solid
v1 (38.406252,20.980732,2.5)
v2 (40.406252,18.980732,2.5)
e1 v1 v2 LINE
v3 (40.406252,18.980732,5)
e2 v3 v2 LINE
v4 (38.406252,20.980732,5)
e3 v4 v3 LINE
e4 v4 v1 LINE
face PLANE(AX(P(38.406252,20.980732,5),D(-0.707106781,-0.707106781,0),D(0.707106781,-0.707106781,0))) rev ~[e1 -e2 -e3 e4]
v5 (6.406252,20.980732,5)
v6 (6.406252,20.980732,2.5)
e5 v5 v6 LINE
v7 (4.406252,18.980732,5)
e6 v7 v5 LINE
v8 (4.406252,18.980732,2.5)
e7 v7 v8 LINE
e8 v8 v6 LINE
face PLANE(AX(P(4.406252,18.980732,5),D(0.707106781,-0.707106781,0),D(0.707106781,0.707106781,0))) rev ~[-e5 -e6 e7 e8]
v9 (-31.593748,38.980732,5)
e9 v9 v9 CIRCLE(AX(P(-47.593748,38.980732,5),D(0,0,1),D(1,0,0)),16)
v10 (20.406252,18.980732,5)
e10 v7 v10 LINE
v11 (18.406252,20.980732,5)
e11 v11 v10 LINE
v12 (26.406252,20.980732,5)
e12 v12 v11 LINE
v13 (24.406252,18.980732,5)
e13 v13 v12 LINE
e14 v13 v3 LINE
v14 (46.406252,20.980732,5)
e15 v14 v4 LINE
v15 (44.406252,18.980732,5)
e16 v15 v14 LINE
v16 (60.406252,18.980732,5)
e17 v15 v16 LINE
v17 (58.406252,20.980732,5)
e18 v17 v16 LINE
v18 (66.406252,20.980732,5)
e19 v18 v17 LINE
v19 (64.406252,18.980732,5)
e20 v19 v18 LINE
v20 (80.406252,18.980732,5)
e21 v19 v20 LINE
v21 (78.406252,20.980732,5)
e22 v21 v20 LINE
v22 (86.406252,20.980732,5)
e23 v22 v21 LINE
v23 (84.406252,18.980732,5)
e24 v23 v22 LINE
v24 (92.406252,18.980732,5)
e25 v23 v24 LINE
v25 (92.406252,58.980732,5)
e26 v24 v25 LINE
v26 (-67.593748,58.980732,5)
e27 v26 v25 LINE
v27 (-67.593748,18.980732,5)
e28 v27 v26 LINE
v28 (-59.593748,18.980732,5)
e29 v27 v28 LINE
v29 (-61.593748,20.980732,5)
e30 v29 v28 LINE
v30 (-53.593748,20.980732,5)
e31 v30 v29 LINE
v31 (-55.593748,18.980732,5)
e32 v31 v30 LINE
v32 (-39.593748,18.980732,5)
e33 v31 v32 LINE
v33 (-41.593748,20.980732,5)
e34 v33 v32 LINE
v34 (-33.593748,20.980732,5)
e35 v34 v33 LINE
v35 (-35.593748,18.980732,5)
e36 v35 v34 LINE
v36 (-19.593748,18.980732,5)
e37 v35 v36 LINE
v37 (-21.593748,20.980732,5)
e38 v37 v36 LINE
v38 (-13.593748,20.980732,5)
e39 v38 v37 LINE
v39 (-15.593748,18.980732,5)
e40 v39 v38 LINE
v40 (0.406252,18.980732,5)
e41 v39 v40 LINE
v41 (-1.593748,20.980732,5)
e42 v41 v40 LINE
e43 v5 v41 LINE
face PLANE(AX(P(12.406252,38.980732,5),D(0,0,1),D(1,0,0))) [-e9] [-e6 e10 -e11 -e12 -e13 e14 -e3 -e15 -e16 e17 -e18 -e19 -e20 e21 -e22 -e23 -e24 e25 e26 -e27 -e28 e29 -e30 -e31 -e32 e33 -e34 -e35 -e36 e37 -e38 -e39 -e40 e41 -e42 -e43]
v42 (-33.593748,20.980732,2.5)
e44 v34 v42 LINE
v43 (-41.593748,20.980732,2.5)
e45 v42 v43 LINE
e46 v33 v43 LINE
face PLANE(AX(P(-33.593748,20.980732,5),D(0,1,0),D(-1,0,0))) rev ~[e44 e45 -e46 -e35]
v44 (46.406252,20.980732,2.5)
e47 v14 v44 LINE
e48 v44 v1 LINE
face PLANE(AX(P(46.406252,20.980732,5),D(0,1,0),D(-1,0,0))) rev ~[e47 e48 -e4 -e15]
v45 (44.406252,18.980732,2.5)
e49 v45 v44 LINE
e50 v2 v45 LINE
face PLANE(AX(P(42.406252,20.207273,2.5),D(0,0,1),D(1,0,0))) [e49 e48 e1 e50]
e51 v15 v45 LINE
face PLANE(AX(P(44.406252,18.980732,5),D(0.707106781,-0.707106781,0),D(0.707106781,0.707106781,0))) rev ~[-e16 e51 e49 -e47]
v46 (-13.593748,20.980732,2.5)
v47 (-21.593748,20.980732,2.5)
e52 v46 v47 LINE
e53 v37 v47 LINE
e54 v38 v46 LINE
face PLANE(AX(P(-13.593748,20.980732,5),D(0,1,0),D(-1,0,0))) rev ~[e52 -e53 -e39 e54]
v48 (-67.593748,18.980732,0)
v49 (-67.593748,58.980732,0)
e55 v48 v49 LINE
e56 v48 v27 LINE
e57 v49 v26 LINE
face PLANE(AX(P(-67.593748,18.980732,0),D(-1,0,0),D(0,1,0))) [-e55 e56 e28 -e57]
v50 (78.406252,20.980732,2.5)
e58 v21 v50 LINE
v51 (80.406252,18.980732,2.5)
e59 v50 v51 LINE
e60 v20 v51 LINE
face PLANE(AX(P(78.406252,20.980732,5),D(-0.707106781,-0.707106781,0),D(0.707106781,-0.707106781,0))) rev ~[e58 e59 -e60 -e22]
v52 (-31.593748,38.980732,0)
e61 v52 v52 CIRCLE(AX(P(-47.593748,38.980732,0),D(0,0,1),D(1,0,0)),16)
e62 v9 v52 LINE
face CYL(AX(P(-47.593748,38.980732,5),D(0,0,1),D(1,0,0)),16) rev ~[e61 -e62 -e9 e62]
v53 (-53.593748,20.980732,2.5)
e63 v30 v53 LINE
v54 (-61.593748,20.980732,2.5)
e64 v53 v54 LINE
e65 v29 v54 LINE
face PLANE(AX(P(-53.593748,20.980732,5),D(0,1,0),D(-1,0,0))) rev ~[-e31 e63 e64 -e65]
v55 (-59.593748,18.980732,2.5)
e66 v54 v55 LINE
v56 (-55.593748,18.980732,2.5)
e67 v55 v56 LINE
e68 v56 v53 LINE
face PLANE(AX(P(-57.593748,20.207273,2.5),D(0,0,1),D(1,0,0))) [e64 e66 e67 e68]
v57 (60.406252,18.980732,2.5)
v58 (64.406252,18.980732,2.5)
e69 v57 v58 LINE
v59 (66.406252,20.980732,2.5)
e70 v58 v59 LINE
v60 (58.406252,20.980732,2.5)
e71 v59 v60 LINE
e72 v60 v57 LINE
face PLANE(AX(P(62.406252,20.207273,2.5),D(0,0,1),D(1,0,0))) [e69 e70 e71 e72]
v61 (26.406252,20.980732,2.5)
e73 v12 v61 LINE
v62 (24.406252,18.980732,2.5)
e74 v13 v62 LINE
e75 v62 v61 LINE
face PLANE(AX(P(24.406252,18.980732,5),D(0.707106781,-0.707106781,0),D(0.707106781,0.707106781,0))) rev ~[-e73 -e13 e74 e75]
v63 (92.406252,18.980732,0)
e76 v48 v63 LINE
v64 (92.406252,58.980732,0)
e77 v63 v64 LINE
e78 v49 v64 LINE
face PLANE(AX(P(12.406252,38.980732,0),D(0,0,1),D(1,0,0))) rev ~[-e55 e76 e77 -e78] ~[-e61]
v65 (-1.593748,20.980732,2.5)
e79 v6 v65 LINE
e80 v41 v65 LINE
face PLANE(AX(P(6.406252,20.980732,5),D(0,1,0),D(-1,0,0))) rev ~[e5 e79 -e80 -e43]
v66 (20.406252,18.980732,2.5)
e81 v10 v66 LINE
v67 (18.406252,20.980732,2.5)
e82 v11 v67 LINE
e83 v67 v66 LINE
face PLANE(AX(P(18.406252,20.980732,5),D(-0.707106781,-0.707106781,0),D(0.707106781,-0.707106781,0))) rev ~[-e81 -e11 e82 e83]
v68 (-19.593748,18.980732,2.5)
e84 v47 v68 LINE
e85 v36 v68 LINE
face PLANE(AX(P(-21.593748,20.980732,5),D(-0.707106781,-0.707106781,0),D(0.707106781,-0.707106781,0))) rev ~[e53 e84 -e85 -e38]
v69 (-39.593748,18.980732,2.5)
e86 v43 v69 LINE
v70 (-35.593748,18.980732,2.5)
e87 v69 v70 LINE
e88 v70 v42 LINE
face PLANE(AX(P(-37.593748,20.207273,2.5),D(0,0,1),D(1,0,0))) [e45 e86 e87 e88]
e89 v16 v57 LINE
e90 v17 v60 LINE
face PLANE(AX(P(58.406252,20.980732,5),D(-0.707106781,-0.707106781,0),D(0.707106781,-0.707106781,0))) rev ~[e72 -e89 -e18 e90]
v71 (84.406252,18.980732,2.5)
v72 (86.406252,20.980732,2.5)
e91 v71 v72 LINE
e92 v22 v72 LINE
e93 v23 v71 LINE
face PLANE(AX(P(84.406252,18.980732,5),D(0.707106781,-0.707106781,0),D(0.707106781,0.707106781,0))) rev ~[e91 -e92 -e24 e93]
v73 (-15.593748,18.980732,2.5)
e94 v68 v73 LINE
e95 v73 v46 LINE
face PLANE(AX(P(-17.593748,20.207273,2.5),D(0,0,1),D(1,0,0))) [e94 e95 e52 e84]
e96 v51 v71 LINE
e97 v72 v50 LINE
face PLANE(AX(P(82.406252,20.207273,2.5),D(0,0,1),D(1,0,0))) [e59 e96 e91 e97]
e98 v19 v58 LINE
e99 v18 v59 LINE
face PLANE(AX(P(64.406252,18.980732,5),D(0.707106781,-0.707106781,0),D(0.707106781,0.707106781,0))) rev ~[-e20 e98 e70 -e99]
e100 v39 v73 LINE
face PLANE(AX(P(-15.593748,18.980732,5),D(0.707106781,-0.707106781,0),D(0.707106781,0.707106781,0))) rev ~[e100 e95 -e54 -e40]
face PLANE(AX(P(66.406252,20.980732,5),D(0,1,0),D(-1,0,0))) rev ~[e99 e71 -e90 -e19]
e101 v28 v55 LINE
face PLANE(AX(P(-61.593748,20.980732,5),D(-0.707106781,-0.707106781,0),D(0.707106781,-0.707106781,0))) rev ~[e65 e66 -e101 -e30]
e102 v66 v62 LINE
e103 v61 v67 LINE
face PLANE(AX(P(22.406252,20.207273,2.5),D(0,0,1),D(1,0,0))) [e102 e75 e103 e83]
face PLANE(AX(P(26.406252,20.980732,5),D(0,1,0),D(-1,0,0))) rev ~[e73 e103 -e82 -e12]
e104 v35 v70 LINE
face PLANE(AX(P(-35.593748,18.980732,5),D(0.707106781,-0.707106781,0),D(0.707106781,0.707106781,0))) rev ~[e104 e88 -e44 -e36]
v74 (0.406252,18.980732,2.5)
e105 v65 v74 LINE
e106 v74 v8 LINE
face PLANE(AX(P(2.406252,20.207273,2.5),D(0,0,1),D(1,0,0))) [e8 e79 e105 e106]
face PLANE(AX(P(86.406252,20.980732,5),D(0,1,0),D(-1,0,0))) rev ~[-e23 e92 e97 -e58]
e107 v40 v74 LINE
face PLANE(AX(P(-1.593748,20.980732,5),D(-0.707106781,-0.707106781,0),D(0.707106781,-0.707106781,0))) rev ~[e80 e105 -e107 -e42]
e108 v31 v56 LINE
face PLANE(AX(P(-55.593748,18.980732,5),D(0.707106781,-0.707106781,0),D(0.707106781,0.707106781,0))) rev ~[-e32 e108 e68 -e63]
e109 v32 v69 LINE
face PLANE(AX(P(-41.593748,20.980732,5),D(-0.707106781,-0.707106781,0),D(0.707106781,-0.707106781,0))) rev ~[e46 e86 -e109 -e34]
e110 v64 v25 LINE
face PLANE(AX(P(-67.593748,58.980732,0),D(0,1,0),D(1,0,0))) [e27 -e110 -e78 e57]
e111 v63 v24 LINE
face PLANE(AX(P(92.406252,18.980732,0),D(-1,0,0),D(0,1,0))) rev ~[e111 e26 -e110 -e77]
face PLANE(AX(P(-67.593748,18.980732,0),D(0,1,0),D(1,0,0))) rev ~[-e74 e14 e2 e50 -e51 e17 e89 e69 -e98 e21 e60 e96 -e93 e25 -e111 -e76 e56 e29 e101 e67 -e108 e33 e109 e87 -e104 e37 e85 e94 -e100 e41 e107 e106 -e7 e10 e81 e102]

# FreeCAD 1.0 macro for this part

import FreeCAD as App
import Part
import Sketcher
Q = App.Units.Quantity

doc = App.newDocument("Part")
body = doc.addObject("PartDesign::Body", "Body")

sketch1 = body.newObject("Sketcher::SketchObject", "Sketch")
sketch1.AttachmentSupport = (doc.getObject("XY_Plane"), [""])
sketch1.MapMode = "FlatFace"
sketch1.addGeometry([
    Part.LineSegment(App.Vector(-68, 59, 0), App.Vector(-68, 19, 0)),
    Part.LineSegment(App.Vector(-68, 19, 0), App.Vector(92, 19, 0)),
    Part.LineSegment(App.Vector(92, 19, 0), App.Vector(92, 59, 0)),
    Part.LineSegment(App.Vector(92, 59, 0), App.Vector(-68, 59, 0)),
], False)
sketch1.addConstraint([
    Sketcher.Constraint("Coincident", 0, 2, 1, 1),
    Sketcher.Constraint("Coincident", 1, 2, 2, 1),
    Sketcher.Constraint("Coincident", 2, 2, 3, 1),
    Sketcher.Constraint("Coincident", 3, 2, 0, 1),
    Sketcher.Constraint("Vertical", 0),
    Sketcher.Constraint("Horizontal", 1),
    Sketcher.Constraint("Vertical", 2),
    Sketcher.Constraint("Horizontal", 3),
    Sketcher.Constraint("DistanceX", 1, 1, 1, 2, Q("160 mm")),
    Sketcher.Constraint("DistanceY", 0, 2, 0, 1, Q("40 mm")),
    Sketcher.Constraint("DistanceX", 0, 2, -1, 1, Q("67.593748 mm")),
    Sketcher.Constraint("DistanceY", -1, 1, 0, 2, Q("18.980732 mm")),
])
pad1 = body.newObject("PartDesign::Pad", "Pad")
pad1.Profile = sketch1
pad1.Length = 5

sketch2 = body.newObject("Sketcher::SketchObject", "Sketch001")
sketch2.AttachmentSupport = (doc.getObject("XY_Plane"), [""])
sketch2.MapMode = "FlatFace"
sketch2.AttachmentOffset = App.Placement(App.Vector(0, 0, 5), App.Rotation())
sketch2.addGeometry(Part.Circle(App.Vector(-48, 39, 0), App.Vector(0, 0, 1), 16), False)
sketch2.addConstraint([
    Sketcher.Constraint("Diameter", 0, Q("32 mm")),
    Sketcher.Constraint("DistanceX", 0, 3, -1, 1, Q("47.593748 mm")),
    Sketcher.Constraint("DistanceY", -1, 1, 0, 3, Q("38.980732 mm")),
])
pocket1 = body.newObject("PartDesign::Pocket", "Pocket")
pocket1.Profile = sketch2
pocket1.Length = 5

sketch3 = body.newObject("Sketcher::SketchObject", "Sketch002")
sketch3.AttachmentSupport = (doc.getObject("XY_Plane"), [""])
sketch3.MapMode = "FlatFace"
sketch3.AttachmentOffset = App.Placement(App.Vector(0, 0, 5), App.Rotation())
sketch3.addGeometry([
    Part.LineSegment(App.Vector(-53.6, 21, 0), App.Vector(-61.6, 21, 0)),
    Part.LineSegment(App.Vector(-61.6, 21, 0), App.Vector(-59.6, 19, 0)),
    Part.LineSegment(App.Vector(-59.6, 19, 0), App.Vector(-55.6, 19, 0)),
    Part.LineSegment(App.Vector(-55.6, 19, 0), App.Vector(-53.6, 21, 0)),
    Part.LineSegment(App.Vector(-33.6, 21, 0), App.Vector(-41.6, 21, 0)),
    Part.LineSegment(App.Vector(-41.6, 21, 0), App.Vector(-39.6, 19, 0)),
    Part.LineSegment(App.Vector(-39.6, 19, 0), App.Vector(-35.6, 19, 0)),
    Part.LineSegment(App.Vector(-35.6, 19, 0), App.Vector(-33.6, 21, 0)),
    Part.LineSegment(App.Vector(-13.6, 21, 0), App.Vector(-21.6, 21, 0)),
    Part.LineSegment(App.Vector(-21.6, 21, 0), App.Vector(-19.6, 19, 0)),
    Part.LineSegment(App.Vector(-19.6, 19, 0), App.Vector(-15.6, 19, 0)),
    Part.LineSegment(App.Vector(-15.6, 19, 0), App.Vector(-13.6, 21, 0)),
    Part.LineSegment(App.Vector(6.4, 21, 0), App.Vector(-1.6, 21, 0)),
    Part.LineSegment(App.Vector(-1.6, 21, 0), App.Vector(0.4, 19, 0)),
    Part.LineSegment(App.Vector(0.4, 19, 0), App.Vector(4.4, 19, 0)),
    Part.LineSegment(App.Vector(4.4, 19, 0), App.Vector(6.4, 21, 0)),
    Part.LineSegment(App.Vector(26.4, 21, 0), App.Vector(18.4, 21, 0)),
    Part.LineSegment(App.Vector(18.4, 21, 0), App.Vector(20.4, 19, 0)),
    Part.LineSegment(App.Vector(20.4, 19, 0), App.Vector(24.4, 19, 0)),
    Part.LineSegment(App.Vector(24.4, 19, 0), App.Vector(26.4, 21, 0)),
    Part.LineSegment(App.Vector(44.4, 19, 0), App.Vector(46.4, 21, 0)),
    Part.LineSegment(App.Vector(46.4, 21, 0), App.Vector(38.4, 21, 0)),
    Part.LineSegment(App.Vector(38.4, 21, 0), App.Vector(40.4, 19, 0)),
    Part.LineSegment(App.Vector(40.4, 19, 0), App.Vector(44.4, 19, 0)),
    Part.LineSegment(App.Vector(64.4, 19, 0), App.Vector(66.4, 21, 0)),
    Part.LineSegment(App.Vector(66.4, 21, 0), App.Vector(58.4, 21, 0)),
    Part.LineSegment(App.Vector(58.4, 21, 0), App.Vector(60.4, 19, 0)),
    Part.LineSegment(App.Vector(60.4, 19, 0), App.Vector(64.4, 19, 0)),
    Part.LineSegment(App.Vector(84.4, 19, 0), App.Vector(86.4, 21, 0)),
    Part.LineSegment(App.Vector(86.4, 21, 0), App.Vector(78.4, 21, 0)),
    Part.LineSegment(App.Vector(78.4, 21, 0), App.Vector(80.4, 19, 0)),
    Part.LineSegment(App.Vector(80.4, 19, 0), App.Vector(84.4, 19, 0)),
], False)
sketch3.addConstraint([
    Sketcher.Constraint("Coincident", 0, 2, 1, 1),
    Sketcher.Constraint("Coincident", 1, 2, 2, 1),
    Sketcher.Constraint("Coincident", 2, 2, 3, 1),
    Sketcher.Constraint("Coincident", 3, 2, 0, 1),
    Sketcher.Constraint("Coincident", 4, 2, 5, 1),
    Sketcher.Constraint("Coincident", 5, 2, 6, 1),
    Sketcher.Constraint("Coincident", 6, 2, 7, 1),
    Sketcher.Constraint("Coincident", 7, 2, 4, 1),
    Sketcher.Constraint("Coincident", 8, 2, 9, 1),
    Sketcher.Constraint("Coincident", 9, 2, 10, 1),
    Sketcher.Constraint("Coincident", 10, 2, 11, 1),
    Sketcher.Constraint("Coincident", 11, 2, 8, 1),
    Sketcher.Constraint("Coincident", 12, 2, 13, 1),
    Sketcher.Constraint("Coincident", 13, 2, 14, 1),
    Sketcher.Constraint("Coincident", 14, 2, 15, 1),
    Sketcher.Constraint("Coincident", 15, 2, 12, 1),
    Sketcher.Constraint("Coincident", 16, 2, 17, 1),
    Sketcher.Constraint("Coincident", 17, 2, 18, 1),
    Sketcher.Constraint("Coincident", 18, 2, 19, 1),
    Sketcher.Constraint("Coincident", 19, 2, 16, 1),
    Sketcher.Constraint("Coincident", 20, 2, 21, 1),
    Sketcher.Constraint("Coincident", 21, 2, 22, 1),
    Sketcher.Constraint("Coincident", 22, 2, 23, 1),
    Sketcher.Constraint("Coincident", 23, 2, 20, 1),
    Sketcher.Constraint("Coincident", 24, 2, 25, 1),
    Sketcher.Constraint("Coincident", 25, 2, 26, 1),
    Sketcher.Constraint("Coincident", 26, 2, 27, 1),
    Sketcher.Constraint("Coincident", 27, 2, 24, 1),
    Sketcher.Constraint("Coincident", 28, 2, 29, 1),
    Sketcher.Constraint("Coincident", 29, 2, 30, 1),
    Sketcher.Constraint("Coincident", 30, 2, 31, 1),
    Sketcher.Constraint("Coincident", 31, 2, 28, 1),
    Sketcher.Constraint("Horizontal", 0),
    Sketcher.Constraint("Horizontal", 2),
    Sketcher.Constraint("Horizontal", 4),
    Sketcher.Constraint("Horizontal", 6),
    Sketcher.Constraint("Horizontal", 8),
    Sketcher.Constraint("Horizontal", 10),
    Sketcher.Constraint("Horizontal", 12),
    Sketcher.Constraint("Horizontal", 14),
    Sketcher.Constraint("Horizontal", 16),
    Sketcher.Constraint("Horizontal", 18),
    Sketcher.Constraint("Horizontal", 21),
    Sketcher.Constraint("Horizontal", 23),
    Sketcher.Constraint("Horizontal", 25),
    Sketcher.Constraint("Horizontal", 27),
    Sketcher.Constraint("Horizontal", 29),
    Sketcher.Constraint("Horizontal", 31),
    Sketcher.Constraint("Perpendicular", 1, 3),
    Sketcher.Constraint("Perpendicular", 3, 5),
    Sketcher.Constraint("Perpendicular", 5, 7),
    Sketcher.Constraint("Perpendicular", 7, 9),
    Sketcher.Constraint("Perpendicular", 9, 11),
    Sketcher.Constraint("Perpendicular", 11, 13),
    Sketcher.Constraint("Perpendicular", 13, 15),
    Sketcher.Constraint("Perpendicular", 15, 17),
    Sketcher.Constraint("Perpendicular", 17, 19),
    Sketcher.Constraint("Parallel", 19, 20),
    Sketcher.Constraint("Perpendicular", 20, 22),
    Sketcher.Constraint("Perpendicular", 22, 24),
    Sketcher.Constraint("Perpendicular", 24, 26),
    Sketcher.Constraint("Perpendicular", 26, 28),
    Sketcher.Constraint("Perpendicular", 28, 30),
    Sketcher.Constraint("Horizontal", 3, 2, 4, 2),
    Sketcher.Constraint("Horizontal", 2, 2, 5, 2),
    Sketcher.Constraint("Horizontal", 7, 2, 8, 2),
    Sketcher.Constraint("Horizontal", 6, 2, 9, 2),
    Sketcher.Constraint("Horizontal", 11, 2, 12, 2),
    Sketcher.Constraint("Horizontal", 10, 2, 13, 2),
    Sketcher.Constraint("Horizontal", 15, 2, 16, 2),
    Sketcher.Constraint("Horizontal", 14, 2, 17, 2),
    Sketcher.Constraint("Horizontal", 19, 2, 20, 2),
    Sketcher.Constraint("Horizontal", 18, 2, 22, 2),
    Sketcher.Constraint("Horizontal", 21, 2, 24, 2),
    Sketcher.Constraint("Horizontal", 23, 2, 26, 2),
    Sketcher.Constraint("Horizontal", 25, 2, 28, 2),
    Sketcher.Constraint("Horizontal", 27, 2, 30, 2),
    Sketcher.Constraint("Equal", 0, 4),
    Sketcher.Constraint("Equal", 4, 8),
    Sketcher.Constraint("Equal", 8, 12),
    Sketcher.Constraint("Equal", 12, 16),
    Sketcher.Constraint("Equal", 16, 21),
    Sketcher.Constraint("Equal", 21, 25),
    Sketcher.Constraint("Equal", 25, 29),
    Sketcher.Constraint("Equal", 1, 3),
    Sketcher.Constraint("DistanceX", 0, 2, 0, 1, Q("8 mm")),
    Sketcher.Constraint("DistanceX", 2, 1, 2, 2, Q("4 mm")),
    Sketcher.Constraint("DistanceX", 3, 2, 4, 2, Q("12 mm")),
    Sketcher.Constraint("DistanceX", 7, 2, 8, 2, Q("12 mm")),
    Sketcher.Constraint("DistanceX", 11, 2, 12, 2, Q("12 mm")),
    Sketcher.Constraint("DistanceX", 15, 2, 16, 2, Q("12 mm")),
    Sketcher.Constraint("DistanceX", 19, 2, 20, 2, Q("20 mm")),
    Sketcher.Constraint("DistanceX", 20, 2, 24, 2, Q("20 mm")),
    Sketcher.Constraint("DistanceX", 24, 2, 28, 2, Q("20 mm")),
    Sketcher.Constraint("DistanceY", -1, 1, 0, 2, Q("20.980732 mm")),
    Sketcher.Constraint("DistanceX", 8, 2, -1, 1, Q("21.593748 mm")),
])
pocket2 = body.newObject("PartDesign::Pocket", "Pocket001")
pocket2.Profile = sketch3
pocket2.Length = 2.5

doc.recompute()
